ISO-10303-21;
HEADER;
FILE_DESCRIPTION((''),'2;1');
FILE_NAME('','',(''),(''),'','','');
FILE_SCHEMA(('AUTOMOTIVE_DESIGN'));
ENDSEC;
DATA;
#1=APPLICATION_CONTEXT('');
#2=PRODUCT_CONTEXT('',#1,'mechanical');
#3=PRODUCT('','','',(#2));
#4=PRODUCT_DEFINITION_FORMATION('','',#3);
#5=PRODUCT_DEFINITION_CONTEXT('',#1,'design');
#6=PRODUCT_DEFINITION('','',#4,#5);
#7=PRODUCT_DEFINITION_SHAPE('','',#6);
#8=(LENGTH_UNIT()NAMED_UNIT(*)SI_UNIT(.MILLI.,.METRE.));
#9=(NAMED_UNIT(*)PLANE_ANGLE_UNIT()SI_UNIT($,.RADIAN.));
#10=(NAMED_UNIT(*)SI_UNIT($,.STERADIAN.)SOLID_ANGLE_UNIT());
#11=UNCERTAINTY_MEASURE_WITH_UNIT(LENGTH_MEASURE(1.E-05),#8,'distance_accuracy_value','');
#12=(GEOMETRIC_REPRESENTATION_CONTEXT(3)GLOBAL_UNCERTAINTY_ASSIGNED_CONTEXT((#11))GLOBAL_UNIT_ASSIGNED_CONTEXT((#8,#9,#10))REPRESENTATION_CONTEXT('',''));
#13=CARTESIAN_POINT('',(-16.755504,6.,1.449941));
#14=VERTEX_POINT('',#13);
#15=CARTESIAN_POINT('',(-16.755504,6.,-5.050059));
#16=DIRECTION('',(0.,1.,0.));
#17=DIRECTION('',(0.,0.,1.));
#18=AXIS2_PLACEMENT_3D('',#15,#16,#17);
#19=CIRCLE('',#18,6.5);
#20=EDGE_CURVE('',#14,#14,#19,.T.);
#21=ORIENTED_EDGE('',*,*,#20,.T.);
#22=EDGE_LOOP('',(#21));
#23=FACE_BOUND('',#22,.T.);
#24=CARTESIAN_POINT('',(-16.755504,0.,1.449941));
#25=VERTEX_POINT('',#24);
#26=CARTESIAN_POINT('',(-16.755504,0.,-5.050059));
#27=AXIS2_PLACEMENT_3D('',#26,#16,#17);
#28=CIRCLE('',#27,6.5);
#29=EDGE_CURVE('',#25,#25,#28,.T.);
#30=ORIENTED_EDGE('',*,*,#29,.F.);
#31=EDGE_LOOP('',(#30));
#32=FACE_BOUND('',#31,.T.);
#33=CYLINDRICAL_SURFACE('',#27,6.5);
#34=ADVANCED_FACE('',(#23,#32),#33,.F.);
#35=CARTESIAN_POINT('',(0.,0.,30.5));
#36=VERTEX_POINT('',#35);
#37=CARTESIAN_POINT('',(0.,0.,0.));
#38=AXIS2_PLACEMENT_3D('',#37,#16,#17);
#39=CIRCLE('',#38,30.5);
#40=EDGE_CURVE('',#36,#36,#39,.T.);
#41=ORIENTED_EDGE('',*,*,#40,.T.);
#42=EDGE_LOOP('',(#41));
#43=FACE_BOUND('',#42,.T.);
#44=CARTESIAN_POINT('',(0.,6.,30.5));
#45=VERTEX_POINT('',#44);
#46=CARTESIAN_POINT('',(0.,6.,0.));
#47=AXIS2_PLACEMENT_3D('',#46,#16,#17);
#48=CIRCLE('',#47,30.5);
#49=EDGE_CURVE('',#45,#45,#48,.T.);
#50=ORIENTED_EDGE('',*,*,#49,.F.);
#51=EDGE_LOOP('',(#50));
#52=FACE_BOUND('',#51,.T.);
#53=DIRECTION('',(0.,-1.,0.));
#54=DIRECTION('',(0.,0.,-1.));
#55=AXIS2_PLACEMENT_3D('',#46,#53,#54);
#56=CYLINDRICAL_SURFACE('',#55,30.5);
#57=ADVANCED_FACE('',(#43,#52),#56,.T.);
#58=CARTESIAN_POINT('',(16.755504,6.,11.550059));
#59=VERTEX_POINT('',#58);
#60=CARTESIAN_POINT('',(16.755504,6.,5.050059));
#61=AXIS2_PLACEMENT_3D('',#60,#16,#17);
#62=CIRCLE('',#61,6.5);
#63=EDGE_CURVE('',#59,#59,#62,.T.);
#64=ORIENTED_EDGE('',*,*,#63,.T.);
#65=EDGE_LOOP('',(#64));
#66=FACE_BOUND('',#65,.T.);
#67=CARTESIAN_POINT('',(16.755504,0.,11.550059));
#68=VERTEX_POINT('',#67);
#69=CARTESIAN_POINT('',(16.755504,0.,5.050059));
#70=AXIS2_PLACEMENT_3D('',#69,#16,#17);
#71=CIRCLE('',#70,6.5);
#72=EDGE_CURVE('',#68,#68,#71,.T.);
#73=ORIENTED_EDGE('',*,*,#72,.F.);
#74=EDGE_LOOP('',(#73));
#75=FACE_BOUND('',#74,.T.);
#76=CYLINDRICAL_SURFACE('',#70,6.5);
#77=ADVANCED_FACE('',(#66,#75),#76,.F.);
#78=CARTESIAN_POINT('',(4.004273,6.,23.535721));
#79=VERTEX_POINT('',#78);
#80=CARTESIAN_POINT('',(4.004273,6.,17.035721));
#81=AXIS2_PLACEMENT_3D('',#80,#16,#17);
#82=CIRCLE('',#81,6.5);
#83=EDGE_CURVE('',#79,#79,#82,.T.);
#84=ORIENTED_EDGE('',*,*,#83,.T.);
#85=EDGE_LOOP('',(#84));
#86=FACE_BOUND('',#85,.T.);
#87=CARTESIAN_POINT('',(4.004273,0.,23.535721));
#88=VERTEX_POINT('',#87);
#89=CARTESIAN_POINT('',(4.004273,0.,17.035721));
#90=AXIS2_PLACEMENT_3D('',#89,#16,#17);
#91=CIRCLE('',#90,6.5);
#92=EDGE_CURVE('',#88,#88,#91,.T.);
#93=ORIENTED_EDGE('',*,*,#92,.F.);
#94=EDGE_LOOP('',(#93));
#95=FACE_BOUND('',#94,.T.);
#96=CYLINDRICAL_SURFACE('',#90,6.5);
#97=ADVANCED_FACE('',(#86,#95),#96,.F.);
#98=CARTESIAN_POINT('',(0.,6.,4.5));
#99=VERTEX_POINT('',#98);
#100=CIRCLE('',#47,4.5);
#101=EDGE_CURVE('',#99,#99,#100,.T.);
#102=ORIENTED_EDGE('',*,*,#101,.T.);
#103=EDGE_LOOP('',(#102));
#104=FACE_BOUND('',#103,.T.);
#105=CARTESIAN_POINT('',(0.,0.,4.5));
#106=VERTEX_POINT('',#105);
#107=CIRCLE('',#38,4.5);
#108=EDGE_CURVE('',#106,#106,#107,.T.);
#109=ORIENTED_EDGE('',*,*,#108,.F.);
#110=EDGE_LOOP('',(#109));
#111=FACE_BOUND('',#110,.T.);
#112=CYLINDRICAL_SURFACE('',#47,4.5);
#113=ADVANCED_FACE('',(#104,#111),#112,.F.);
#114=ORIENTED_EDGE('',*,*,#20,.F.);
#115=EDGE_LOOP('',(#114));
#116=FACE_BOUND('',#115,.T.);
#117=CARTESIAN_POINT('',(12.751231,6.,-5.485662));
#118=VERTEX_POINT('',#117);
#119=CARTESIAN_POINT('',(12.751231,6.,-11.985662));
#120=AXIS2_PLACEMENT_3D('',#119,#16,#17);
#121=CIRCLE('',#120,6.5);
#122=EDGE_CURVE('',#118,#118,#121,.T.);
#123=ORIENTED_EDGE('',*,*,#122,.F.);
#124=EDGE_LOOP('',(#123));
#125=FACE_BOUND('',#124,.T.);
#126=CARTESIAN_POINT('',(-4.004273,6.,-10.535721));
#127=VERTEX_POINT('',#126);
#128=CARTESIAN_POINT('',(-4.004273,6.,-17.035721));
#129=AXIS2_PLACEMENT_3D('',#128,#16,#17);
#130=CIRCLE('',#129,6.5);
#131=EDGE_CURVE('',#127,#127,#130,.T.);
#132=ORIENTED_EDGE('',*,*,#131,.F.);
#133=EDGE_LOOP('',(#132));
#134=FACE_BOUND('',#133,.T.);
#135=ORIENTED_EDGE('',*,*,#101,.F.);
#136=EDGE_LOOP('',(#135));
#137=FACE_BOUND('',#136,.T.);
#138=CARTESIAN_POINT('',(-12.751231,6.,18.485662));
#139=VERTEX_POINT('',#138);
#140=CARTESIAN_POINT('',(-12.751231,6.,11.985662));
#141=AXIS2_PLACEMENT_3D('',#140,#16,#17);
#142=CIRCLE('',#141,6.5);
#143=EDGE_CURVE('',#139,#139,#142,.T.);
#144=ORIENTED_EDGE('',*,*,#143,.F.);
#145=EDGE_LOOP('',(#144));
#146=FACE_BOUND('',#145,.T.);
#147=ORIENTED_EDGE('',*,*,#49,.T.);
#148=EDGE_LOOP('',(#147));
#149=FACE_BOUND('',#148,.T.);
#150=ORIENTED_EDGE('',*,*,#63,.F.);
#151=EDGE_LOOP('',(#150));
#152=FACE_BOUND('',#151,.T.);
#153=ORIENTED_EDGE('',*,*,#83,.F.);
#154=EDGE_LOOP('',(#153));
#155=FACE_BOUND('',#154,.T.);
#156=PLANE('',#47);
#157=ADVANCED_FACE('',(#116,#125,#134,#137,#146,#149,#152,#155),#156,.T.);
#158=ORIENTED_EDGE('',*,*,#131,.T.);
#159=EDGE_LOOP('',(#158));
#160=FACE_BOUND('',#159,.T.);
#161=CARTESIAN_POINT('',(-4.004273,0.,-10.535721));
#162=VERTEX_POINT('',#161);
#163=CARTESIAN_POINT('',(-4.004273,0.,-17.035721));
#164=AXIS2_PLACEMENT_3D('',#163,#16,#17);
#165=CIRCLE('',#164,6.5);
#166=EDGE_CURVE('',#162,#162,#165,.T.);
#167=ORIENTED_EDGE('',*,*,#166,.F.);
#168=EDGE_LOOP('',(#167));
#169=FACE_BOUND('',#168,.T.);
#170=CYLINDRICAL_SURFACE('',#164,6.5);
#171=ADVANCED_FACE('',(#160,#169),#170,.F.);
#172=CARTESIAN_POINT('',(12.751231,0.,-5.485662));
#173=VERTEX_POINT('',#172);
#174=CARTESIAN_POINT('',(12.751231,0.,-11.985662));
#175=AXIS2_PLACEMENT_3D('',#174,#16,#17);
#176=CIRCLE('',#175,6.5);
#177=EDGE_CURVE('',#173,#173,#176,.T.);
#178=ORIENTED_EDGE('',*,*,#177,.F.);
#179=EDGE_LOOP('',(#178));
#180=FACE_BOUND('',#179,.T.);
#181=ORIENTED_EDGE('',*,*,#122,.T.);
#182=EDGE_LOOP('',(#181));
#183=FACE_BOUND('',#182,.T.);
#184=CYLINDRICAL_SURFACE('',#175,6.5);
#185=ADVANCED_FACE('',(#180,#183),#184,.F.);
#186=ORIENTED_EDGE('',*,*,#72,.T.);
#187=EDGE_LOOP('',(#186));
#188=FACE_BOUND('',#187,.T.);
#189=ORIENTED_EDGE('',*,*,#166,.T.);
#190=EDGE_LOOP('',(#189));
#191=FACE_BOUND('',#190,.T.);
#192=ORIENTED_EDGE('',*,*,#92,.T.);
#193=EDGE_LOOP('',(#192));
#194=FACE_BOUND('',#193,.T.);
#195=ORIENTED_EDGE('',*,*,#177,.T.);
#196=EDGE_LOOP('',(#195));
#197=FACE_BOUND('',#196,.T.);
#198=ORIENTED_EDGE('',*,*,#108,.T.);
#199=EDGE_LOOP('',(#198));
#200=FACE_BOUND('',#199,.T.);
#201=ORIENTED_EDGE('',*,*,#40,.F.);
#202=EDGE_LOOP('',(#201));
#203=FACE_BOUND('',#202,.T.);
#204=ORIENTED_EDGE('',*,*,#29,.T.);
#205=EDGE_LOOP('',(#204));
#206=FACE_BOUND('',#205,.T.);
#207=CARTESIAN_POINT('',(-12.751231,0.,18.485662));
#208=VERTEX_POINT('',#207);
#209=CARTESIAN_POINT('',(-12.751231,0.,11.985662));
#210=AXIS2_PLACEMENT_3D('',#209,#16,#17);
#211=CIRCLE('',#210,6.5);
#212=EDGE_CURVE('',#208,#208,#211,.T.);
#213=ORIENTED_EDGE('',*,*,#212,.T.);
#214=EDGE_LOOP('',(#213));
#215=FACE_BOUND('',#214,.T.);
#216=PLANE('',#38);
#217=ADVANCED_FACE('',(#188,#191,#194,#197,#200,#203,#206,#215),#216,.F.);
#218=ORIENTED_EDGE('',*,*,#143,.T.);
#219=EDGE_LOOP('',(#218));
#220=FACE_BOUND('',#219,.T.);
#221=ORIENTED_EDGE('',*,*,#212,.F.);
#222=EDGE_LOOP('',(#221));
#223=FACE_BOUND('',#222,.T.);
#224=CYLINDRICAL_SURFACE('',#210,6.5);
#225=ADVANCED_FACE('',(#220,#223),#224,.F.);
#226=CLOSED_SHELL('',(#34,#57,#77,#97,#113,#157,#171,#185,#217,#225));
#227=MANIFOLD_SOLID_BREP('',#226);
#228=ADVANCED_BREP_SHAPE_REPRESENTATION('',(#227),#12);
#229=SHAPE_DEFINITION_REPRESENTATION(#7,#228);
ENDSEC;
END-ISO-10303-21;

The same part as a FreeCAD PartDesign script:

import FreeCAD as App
import Part
import Sketcher
Q = App.Units.Quantity

doc = App.newDocument("Part")
body = doc.addObject("PartDesign::Body", "Body")

# Sketch on XZ plane
sketch1 = doc.addObject("Sketcher::SketchObject", "Sketch")
body.addObject(sketch1)
sketch1.AttachmentSupport = (doc.XZ_Plane, [""])
sketch1.MapMode = "FlatFace"
sketch1.addGeometry(Part.Circle(App.Vector(0, 0, 0), App.Vector(0, 0, 1), 30), False)
sketch1.addConstraint([
    Sketcher.Constraint("Coincident", 0, 3, -1, 1),
    Sketcher.Constraint("Diameter", 0, Q("61 mm")),
])
pad1 = doc.addObject("PartDesign::Pad", "Pad")
body.addObject(pad1)
pad1.Profile = sketch1
pad1.Length = 6
pad1.Reversed = True

# Sketch on XZ plane
sketch2 = doc.addObject("Sketcher::SketchObject", "Sketch001")
body.addObject(sketch2)
sketch2.AttachmentSupport = (doc.XZ_Plane, [""])
sketch2.MapMode = "FlatFace"
sketch2.AttachmentOffset = App.Placement(App.Vector(0, 0, -6), App.Rotation())
sketch2.addGeometry(Part.Circle(App.Vector(0, 0, 0), App.Vector(0, 0, 1), 4.5), False)
sketch2.addConstraint([
    Sketcher.Constraint("Coincident", 0, 3, -1, 1),
    Sketcher.Constraint("Diameter", 0, Q("9 mm")),
])
doc.recompute()
hole = doc.addObject("PartDesign::Hole", "Hole")
body.addObject(hole)
hole.Profile = sketch2
hole.ThreadType = "None"
hole.Diameter = 9
hole.DepthType = "ThroughAll"
hole.Reversed = True

# Sketch on XZ plane
sketch3 = doc.addObject("Sketcher::SketchObject", "Sketch002")
body.addObject(sketch3)
sketch3.AttachmentSupport = (doc.XZ_Plane, [""])
sketch3.MapMode = "FlatFace"
sketch3.AttachmentOffset = App.Placement(App.Vector(0, 0, -6), App.Rotation())
sketch3.addGeometry([
    Part.Circle(App.Vector(-13, 12, 0), App.Vector(0, 0, 1), 6),  # 0
    Part.Circle(App.Vector(-17, -5, 0), App.Vector(0, 0, 1), 6),  # 1
    Part.Circle(App.Vector(-4, -17, 0), App.Vector(0, 0, 1), 6),  # 2
    Part.Circle(App.Vector(13, -12, 0), App.Vector(0, 0, 1), 6),  # 3
    Part.Circle(App.Vector(17, 5, 0), App.Vector(0, 0, 1), 6),  # 4
    Part.Circle(App.Vector(4, 17, 0), App.Vector(0, 0, 1), 6),  # 5
], False)
sketch3.addConstraint([
    Sketcher.Constraint("Equal", 0, 1),
    Sketcher.Constraint("Equal", 1, 2),
    Sketcher.Constraint("Equal", 2, 3),
    Sketcher.Constraint("Equal", 3, 4),
    Sketcher.Constraint("Equal", 4, 5),
    Sketcher.Constraint("Symmetric", 0, 3, 3, 3, -1, 1),
    Sketcher.Constraint("Symmetric", 1, 3, 4, 3, -1, 1),
    Sketcher.Constraint("Symmetric", 2, 3, 5, 3, -1, 1),
    Sketcher.Constraint("Diameter", 0, Q("13 mm")),
    Sketcher.Constraint("DistanceX", 0, 3, -1, 1, Q("12.751231 mm")),
    Sketcher.Constraint("DistanceY", 1, 3, -1, 1, Q("5.050059 mm")),
    Sketcher.Constraint("DistanceY", 2, 3, -1, 1, Q("17.035721 mm")),
    Sketcher.Constraint("DistanceY", 1, 3, 0, 3, Q("17.035721 mm")),
    Sketcher.Constraint("DistanceX", 1, 3, 2, 3, Q("12.751231 mm")),
    Sketcher.Constraint("DistanceX", 0, 3, 2, 3, Q("8.746958 mm")),
])
pocket1 = doc.addObject("PartDesign::Pocket", "Pocket")
body.addObject(pocket1)
pocket1.Profile = sketch3
pocket1.Length = 6
pocket1.Reversed = True

doc.recompute()
